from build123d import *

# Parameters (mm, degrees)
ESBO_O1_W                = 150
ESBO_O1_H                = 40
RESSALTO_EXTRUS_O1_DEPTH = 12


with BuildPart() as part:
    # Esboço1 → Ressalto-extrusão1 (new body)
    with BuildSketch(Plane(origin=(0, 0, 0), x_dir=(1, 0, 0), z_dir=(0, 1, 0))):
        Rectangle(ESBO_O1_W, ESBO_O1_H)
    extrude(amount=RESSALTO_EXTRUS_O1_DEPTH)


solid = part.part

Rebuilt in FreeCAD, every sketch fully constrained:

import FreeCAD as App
import Part
import Sketcher

V = App.Vector
Q = App.Units.Quantity


def add_polygon(sketch, points):
    """Adds a closed chain of lines whose ends are joined by coincident constraints."""
    first, n = sketch.GeometryCount, len(points)
    for a, b in zip(points, points[1:] + points[:1]):
        sketch.addGeometry(Part.LineSegment(App.Vector(*a, 0), App.Vector(*b, 0)), False)
    for i in range(n):
        sketch.addConstraint(Sketcher.Constraint("Coincident", first + i, 2, first + (i + 1) % n, 1))

doc = App.newDocument("Part")
params = doc.addObject("Spreadsheet::Sheet", "Params")
for row, (alias, value) in enumerate([
    ("sketch1_width", "150 mm"),
    ("sketch1_height", "40 mm"),
    ("pad1_length", "12 mm"),
], start=1):
    params.set(f"A{row}", alias)
    params.set(f"B{row}", "=" + value)
    params.setAlias(f"B{row}", alias)

body = doc.addObject("PartDesign::Body", "Body")

# Sketch on XZ plane
sketch1 = doc.addObject("Sketcher::SketchObject", "Sketch")
body.addObject(sketch1)
sketch1.AttachmentSupport = (doc.XZ_Plane, [""])
sketch1.MapMode = "FlatFace"
add_polygon(sketch1, [(-75, -20), (-75, 20), (75, 20), (75, -20)])  # lines 0-3
sketch1.addConstraint([
    Sketcher.Constraint("Vertical", 0),
    Sketcher.Constraint("Horizontal", 1),
    Sketcher.Constraint("Vertical", 2),
    Sketcher.Constraint("Horizontal", 3),
    Sketcher.Constraint("Symmetric", 0, 2, 2, 2, -1, 1),
    Sketcher.Constraint("DistanceX", 1, 1, 1, 2, Q("150 mm")),
    Sketcher.Constraint("DistanceY", 0, 1, 0, 2, Q("40 mm")),
])
sketch1.setExpression("Constraints[9]", "Params.sketch1_width")
sketch1.setExpression("Constraints[10]", "Params.sketch1_height")
pad1 = doc.addObject("PartDesign::Pad", "Pad")
body.addObject(pad1)
pad1.Profile = sketch1
pad1.setExpression("Length", "Params.pad1_length")
pad1.Reversed = True

doc.recompute()
